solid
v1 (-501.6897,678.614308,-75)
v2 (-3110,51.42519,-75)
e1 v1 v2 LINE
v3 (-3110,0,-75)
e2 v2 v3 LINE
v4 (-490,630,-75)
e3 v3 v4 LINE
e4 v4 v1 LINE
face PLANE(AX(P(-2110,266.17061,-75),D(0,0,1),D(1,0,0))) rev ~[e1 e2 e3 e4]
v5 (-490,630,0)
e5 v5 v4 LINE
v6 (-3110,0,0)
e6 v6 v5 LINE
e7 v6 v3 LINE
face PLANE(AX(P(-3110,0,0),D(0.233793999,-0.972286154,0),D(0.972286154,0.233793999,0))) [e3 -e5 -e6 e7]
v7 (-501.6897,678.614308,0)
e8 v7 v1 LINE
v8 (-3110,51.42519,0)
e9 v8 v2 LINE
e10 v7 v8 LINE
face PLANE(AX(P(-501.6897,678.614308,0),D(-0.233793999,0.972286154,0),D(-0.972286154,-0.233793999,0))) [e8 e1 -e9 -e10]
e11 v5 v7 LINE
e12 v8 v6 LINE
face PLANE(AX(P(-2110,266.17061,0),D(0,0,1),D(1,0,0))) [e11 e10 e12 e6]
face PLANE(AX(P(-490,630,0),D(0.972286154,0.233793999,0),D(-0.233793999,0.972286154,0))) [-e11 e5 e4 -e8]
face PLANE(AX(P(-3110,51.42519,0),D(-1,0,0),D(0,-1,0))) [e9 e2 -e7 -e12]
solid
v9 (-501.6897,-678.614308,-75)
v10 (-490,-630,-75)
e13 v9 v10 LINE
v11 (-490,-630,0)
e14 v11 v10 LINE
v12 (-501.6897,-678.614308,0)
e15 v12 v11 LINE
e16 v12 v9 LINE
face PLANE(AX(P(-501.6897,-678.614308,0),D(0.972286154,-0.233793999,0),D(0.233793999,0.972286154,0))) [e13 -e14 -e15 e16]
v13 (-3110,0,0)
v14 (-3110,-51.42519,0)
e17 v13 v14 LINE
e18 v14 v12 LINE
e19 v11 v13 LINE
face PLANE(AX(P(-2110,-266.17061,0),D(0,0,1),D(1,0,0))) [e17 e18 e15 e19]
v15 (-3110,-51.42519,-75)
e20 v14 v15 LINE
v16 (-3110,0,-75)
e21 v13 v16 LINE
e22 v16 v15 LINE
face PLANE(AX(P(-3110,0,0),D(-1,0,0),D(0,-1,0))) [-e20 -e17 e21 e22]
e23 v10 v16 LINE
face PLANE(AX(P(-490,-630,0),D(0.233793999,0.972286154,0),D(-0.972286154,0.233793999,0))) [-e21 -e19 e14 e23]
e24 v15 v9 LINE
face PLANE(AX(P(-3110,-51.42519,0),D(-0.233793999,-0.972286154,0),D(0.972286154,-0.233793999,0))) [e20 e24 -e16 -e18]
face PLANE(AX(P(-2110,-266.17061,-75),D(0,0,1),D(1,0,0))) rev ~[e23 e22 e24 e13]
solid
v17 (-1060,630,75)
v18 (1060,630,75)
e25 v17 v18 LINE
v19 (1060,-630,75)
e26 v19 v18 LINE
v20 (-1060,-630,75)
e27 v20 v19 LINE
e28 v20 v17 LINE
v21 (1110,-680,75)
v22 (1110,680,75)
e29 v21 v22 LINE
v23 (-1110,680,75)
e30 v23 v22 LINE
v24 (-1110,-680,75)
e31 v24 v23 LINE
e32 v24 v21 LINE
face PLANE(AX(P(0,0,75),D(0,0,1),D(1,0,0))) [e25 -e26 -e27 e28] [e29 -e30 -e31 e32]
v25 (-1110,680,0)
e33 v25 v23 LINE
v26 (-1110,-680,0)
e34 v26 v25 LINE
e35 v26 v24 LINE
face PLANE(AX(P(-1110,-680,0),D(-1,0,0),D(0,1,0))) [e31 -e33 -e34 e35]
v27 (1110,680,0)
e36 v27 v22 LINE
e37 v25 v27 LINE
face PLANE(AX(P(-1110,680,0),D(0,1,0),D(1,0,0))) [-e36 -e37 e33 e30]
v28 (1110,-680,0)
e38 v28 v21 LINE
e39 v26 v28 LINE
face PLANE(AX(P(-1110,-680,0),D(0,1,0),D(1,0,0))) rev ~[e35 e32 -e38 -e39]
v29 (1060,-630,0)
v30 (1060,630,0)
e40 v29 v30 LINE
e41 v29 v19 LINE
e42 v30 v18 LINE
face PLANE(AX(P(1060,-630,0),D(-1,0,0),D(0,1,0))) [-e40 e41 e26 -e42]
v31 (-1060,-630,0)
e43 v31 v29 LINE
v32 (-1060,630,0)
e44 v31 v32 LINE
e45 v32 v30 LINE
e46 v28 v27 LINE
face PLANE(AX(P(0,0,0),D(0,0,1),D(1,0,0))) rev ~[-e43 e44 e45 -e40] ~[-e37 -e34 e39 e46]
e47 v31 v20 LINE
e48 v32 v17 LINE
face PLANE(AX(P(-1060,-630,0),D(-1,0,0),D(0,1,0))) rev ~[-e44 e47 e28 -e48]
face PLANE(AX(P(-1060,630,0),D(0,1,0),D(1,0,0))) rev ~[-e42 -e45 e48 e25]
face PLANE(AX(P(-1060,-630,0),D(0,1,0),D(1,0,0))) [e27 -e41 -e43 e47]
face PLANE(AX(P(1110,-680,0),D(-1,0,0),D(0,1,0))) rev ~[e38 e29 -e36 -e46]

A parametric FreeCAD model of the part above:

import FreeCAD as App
import Part
import Sketcher

V = App.Vector
Q = App.Units.Quantity

doc = App.newDocument("Part")
params = doc.addObject("Spreadsheet::Sheet", "Params")
for row, (alias, value) in enumerate([
    ("sketch1_width", "2220 mm"),
    ("sketch1_width2", "2120 mm"),
    ("sketch1_height", "1360 mm"),
    ("sketch1_height2", "1260 mm"),
    ("pad1_length", "75 mm"),
    ("sketch2_length", "50 mm"),
    ("pad2_length", "75 mm"),
    ("sketch3_length", "50 mm"),
    ("pad3_length", "75 mm"),
], start=1):
    params.set(f"A{row}", alias)
    params.set(f"B{row}", "=" + value)
    params.setAlias(f"B{row}", alias)

body = doc.addObject("PartDesign::Body", "Body")

sketch1 = doc.addObject("Sketcher::SketchObject", "Sketch")
body.addObject(sketch1)
sketch1.AttachmentSupport = (doc.XY_Plane, [""])
sketch1.MapMode = "FlatFace"
sketch1.addGeometry([
    Part.LineSegment(V(-1110, 680, 0), V(-1110, -680, 0)),
    Part.LineSegment(V(-1110, -680, 0), V(1110, -680, 0)),
    Part.LineSegment(V(1110, -680, 0), V(1110, 680, 0)),
    Part.LineSegment(V(1110, 680, 0), V(-1110, 680, 0)),
    Part.LineSegment(V(1060, -630, 0), V(-1060, -630, 0)),
    Part.LineSegment(V(-1060, -630, 0), V(-1060, 630, 0)),
    Part.LineSegment(V(-1060, 630, 0), V(1060, 630, 0)),
    Part.LineSegment(V(1060, 630, 0), V(1060, -630, 0)),
], False)
sketch1.addConstraint([
    Sketcher.Constraint("Coincident", 0, 2, 1, 1),
    Sketcher.Constraint("Coincident", 1, 2, 2, 1),
    Sketcher.Constraint("Coincident", 2, 2, 3, 1),
    Sketcher.Constraint("Coincident", 3, 2, 0, 1),
    Sketcher.Constraint("Coincident", 4, 2, 5, 1),
    Sketcher.Constraint("Coincident", 5, 2, 6, 1),
    Sketcher.Constraint("Coincident", 6, 2, 7, 1),
    Sketcher.Constraint("Coincident", 7, 2, 4, 1),
    Sketcher.Constraint("Vertical", 0),
    Sketcher.Constraint("Horizontal", 1),
    Sketcher.Constraint("Vertical", 2),
    Sketcher.Constraint("Horizontal", 3),
    Sketcher.Constraint("Horizontal", 4),
    Sketcher.Constraint("Vertical", 5),
    Sketcher.Constraint("Horizontal", 6),
    Sketcher.Constraint("Vertical", 7),
    Sketcher.Constraint("Symmetric", 0, 2, 2, 2, -1, 1),
    Sketcher.Constraint("Symmetric", 4, 2, 6, 2, -1, 1),
    Sketcher.Constraint("DistanceX", 1, 1, 1, 2, Q("2220 mm")),
    Sketcher.Constraint("DistanceX", 4, 2, 4, 1, Q("2120 mm")),
    Sketcher.Constraint("DistanceY", 0, 2, 0, 1, Q("1360 mm")),
    Sketcher.Constraint("DistanceY", 5, 1, 5, 2, Q("1260 mm")),
])
sketch1.setExpression("Constraints[18]", "Params.sketch1_width")
sketch1.setExpression("Constraints[19]", "Params.sketch1_width2")
sketch1.setExpression("Constraints[20]", "Params.sketch1_height")
sketch1.setExpression("Constraints[21]", "Params.sketch1_height2")
pad1 = doc.addObject("PartDesign::Pad", "Pad")
body.addObject(pad1)
pad1.Profile = sketch1
pad1.setExpression("Length", "Params.pad1_length")
body2 = doc.addObject("PartDesign::Body", "Body001")

sketch2 = doc.addObject("Sketcher::SketchObject", "Sketch001")
body2.addObject(sketch2)
sketch2.AttachmentSupport = (doc.getObject("XY_Plane001"), [""])
sketch2.MapMode = "FlatFace"
sketch2.addGeometry([
    Part.LineSegment(V(-3110, -51, 0), V(-502, -679, 0)),
    Part.LineSegment(V(-502, -679, 0), V(-490, -630, 0)),
    Part.LineSegment(V(-490, -630, 0), V(-3110, 0, 0)),
    Part.LineSegment(V(-3110, 0, 0), V(-3110, -51, 0)),
], False)
sketch2.addConstraint([
    Sketcher.Constraint("Coincident", 0, 2, 1, 1),
    Sketcher.Constraint("Coincident", 1, 2, 2, 1),
    Sketcher.Constraint("Coincident", 2, 2, 3, 1),
    Sketcher.Constraint("Coincident", 3, 2, 0, 1),
    Sketcher.Constraint("Vertical", 3),
    Sketcher.Constraint("PointOnObject", 2, 2, -1),
    Sketcher.Constraint("Perpendicular", 0, 1),
    Sketcher.Constraint("Perpendicular", 1, 2),
    Sketcher.Constraint("Distance", 1, Q("50 mm")),
    Sketcher.Constraint("DistanceX", 1, 2, -1, 1, Q("490 mm")),
    Sketcher.Constraint("DistanceY", 1, 2, -1, 1, Q("630 mm")),
    Sketcher.Constraint("DistanceX", 2, 2, -1, 1, Q("3110 mm")),
])
sketch2.setExpression("Constraints[8]", "Params.sketch2_length")
pad2 = doc.addObject("PartDesign::Pad", "Pad001")
body2.addObject(pad2)
pad2.Profile = sketch2
pad2.setExpression("Length", "Params.pad2_length")
pad2.Reversed = True
body3 = doc.addObject("PartDesign::Body", "Body002")

sketch3 = doc.addObject("Sketcher::SketchObject", "Sketch002")
body3.addObject(sketch3)
sketch3.AttachmentSupport = (doc.getObject("XY_Plane002"), [""])
sketch3.MapMode = "FlatFace"
sketch3.addGeometry([
    Part.LineSegment(V(-3110, 51, 0), V(-3110, 0, 0)),
    Part.LineSegment(V(-3110, 0, 0), V(-490, 630, 0)),
    Part.LineSegment(V(-490, 630, 0), V(-502, 679, 0)),
    Part.LineSegment(V(-502, 679, 0), V(-3110, 51, 0)),
], False)
sketch3.addConstraint([
    Sketcher.Constraint("Coincident", 0, 2, 1, 1),
    Sketcher.Constraint("Coincident", 1, 2, 2, 1),
    Sketcher.Constraint("Coincident", 2, 2, 3, 1),
    Sketcher.Constraint("Coincident", 3, 2, 0, 1),
    Sketcher.Constraint("Vertical", 0),
    Sketcher.Constraint("PointOnObject", 0, 2, -1),
    Sketcher.Constraint("Perpendicular", 1, 2),
    Sketcher.Constraint("Perpendicular", 2, 3),
    Sketcher.Constraint("Distance", 2, Q("50 mm")),
    Sketcher.Constraint("DistanceX", 0, 2, -1, 1, Q("3110 mm")),
    Sketcher.Constraint("DistanceX", 1, 2, -1, 1, Q("490 mm")),
    Sketcher.Constraint("DistanceY", -1, 1, 1, 2, Q("630 mm")),
])
sketch3.setExpression("Constraints[8]", "Params.sketch3_length")
pad3 = doc.addObject("PartDesign::Pad", "Pad002")
body3.addObject(pad3)
pad3.Profile = sketch3
pad3.setExpression("Length", "Params.pad3_length")
pad3.Reversed = True

doc.recompute()
